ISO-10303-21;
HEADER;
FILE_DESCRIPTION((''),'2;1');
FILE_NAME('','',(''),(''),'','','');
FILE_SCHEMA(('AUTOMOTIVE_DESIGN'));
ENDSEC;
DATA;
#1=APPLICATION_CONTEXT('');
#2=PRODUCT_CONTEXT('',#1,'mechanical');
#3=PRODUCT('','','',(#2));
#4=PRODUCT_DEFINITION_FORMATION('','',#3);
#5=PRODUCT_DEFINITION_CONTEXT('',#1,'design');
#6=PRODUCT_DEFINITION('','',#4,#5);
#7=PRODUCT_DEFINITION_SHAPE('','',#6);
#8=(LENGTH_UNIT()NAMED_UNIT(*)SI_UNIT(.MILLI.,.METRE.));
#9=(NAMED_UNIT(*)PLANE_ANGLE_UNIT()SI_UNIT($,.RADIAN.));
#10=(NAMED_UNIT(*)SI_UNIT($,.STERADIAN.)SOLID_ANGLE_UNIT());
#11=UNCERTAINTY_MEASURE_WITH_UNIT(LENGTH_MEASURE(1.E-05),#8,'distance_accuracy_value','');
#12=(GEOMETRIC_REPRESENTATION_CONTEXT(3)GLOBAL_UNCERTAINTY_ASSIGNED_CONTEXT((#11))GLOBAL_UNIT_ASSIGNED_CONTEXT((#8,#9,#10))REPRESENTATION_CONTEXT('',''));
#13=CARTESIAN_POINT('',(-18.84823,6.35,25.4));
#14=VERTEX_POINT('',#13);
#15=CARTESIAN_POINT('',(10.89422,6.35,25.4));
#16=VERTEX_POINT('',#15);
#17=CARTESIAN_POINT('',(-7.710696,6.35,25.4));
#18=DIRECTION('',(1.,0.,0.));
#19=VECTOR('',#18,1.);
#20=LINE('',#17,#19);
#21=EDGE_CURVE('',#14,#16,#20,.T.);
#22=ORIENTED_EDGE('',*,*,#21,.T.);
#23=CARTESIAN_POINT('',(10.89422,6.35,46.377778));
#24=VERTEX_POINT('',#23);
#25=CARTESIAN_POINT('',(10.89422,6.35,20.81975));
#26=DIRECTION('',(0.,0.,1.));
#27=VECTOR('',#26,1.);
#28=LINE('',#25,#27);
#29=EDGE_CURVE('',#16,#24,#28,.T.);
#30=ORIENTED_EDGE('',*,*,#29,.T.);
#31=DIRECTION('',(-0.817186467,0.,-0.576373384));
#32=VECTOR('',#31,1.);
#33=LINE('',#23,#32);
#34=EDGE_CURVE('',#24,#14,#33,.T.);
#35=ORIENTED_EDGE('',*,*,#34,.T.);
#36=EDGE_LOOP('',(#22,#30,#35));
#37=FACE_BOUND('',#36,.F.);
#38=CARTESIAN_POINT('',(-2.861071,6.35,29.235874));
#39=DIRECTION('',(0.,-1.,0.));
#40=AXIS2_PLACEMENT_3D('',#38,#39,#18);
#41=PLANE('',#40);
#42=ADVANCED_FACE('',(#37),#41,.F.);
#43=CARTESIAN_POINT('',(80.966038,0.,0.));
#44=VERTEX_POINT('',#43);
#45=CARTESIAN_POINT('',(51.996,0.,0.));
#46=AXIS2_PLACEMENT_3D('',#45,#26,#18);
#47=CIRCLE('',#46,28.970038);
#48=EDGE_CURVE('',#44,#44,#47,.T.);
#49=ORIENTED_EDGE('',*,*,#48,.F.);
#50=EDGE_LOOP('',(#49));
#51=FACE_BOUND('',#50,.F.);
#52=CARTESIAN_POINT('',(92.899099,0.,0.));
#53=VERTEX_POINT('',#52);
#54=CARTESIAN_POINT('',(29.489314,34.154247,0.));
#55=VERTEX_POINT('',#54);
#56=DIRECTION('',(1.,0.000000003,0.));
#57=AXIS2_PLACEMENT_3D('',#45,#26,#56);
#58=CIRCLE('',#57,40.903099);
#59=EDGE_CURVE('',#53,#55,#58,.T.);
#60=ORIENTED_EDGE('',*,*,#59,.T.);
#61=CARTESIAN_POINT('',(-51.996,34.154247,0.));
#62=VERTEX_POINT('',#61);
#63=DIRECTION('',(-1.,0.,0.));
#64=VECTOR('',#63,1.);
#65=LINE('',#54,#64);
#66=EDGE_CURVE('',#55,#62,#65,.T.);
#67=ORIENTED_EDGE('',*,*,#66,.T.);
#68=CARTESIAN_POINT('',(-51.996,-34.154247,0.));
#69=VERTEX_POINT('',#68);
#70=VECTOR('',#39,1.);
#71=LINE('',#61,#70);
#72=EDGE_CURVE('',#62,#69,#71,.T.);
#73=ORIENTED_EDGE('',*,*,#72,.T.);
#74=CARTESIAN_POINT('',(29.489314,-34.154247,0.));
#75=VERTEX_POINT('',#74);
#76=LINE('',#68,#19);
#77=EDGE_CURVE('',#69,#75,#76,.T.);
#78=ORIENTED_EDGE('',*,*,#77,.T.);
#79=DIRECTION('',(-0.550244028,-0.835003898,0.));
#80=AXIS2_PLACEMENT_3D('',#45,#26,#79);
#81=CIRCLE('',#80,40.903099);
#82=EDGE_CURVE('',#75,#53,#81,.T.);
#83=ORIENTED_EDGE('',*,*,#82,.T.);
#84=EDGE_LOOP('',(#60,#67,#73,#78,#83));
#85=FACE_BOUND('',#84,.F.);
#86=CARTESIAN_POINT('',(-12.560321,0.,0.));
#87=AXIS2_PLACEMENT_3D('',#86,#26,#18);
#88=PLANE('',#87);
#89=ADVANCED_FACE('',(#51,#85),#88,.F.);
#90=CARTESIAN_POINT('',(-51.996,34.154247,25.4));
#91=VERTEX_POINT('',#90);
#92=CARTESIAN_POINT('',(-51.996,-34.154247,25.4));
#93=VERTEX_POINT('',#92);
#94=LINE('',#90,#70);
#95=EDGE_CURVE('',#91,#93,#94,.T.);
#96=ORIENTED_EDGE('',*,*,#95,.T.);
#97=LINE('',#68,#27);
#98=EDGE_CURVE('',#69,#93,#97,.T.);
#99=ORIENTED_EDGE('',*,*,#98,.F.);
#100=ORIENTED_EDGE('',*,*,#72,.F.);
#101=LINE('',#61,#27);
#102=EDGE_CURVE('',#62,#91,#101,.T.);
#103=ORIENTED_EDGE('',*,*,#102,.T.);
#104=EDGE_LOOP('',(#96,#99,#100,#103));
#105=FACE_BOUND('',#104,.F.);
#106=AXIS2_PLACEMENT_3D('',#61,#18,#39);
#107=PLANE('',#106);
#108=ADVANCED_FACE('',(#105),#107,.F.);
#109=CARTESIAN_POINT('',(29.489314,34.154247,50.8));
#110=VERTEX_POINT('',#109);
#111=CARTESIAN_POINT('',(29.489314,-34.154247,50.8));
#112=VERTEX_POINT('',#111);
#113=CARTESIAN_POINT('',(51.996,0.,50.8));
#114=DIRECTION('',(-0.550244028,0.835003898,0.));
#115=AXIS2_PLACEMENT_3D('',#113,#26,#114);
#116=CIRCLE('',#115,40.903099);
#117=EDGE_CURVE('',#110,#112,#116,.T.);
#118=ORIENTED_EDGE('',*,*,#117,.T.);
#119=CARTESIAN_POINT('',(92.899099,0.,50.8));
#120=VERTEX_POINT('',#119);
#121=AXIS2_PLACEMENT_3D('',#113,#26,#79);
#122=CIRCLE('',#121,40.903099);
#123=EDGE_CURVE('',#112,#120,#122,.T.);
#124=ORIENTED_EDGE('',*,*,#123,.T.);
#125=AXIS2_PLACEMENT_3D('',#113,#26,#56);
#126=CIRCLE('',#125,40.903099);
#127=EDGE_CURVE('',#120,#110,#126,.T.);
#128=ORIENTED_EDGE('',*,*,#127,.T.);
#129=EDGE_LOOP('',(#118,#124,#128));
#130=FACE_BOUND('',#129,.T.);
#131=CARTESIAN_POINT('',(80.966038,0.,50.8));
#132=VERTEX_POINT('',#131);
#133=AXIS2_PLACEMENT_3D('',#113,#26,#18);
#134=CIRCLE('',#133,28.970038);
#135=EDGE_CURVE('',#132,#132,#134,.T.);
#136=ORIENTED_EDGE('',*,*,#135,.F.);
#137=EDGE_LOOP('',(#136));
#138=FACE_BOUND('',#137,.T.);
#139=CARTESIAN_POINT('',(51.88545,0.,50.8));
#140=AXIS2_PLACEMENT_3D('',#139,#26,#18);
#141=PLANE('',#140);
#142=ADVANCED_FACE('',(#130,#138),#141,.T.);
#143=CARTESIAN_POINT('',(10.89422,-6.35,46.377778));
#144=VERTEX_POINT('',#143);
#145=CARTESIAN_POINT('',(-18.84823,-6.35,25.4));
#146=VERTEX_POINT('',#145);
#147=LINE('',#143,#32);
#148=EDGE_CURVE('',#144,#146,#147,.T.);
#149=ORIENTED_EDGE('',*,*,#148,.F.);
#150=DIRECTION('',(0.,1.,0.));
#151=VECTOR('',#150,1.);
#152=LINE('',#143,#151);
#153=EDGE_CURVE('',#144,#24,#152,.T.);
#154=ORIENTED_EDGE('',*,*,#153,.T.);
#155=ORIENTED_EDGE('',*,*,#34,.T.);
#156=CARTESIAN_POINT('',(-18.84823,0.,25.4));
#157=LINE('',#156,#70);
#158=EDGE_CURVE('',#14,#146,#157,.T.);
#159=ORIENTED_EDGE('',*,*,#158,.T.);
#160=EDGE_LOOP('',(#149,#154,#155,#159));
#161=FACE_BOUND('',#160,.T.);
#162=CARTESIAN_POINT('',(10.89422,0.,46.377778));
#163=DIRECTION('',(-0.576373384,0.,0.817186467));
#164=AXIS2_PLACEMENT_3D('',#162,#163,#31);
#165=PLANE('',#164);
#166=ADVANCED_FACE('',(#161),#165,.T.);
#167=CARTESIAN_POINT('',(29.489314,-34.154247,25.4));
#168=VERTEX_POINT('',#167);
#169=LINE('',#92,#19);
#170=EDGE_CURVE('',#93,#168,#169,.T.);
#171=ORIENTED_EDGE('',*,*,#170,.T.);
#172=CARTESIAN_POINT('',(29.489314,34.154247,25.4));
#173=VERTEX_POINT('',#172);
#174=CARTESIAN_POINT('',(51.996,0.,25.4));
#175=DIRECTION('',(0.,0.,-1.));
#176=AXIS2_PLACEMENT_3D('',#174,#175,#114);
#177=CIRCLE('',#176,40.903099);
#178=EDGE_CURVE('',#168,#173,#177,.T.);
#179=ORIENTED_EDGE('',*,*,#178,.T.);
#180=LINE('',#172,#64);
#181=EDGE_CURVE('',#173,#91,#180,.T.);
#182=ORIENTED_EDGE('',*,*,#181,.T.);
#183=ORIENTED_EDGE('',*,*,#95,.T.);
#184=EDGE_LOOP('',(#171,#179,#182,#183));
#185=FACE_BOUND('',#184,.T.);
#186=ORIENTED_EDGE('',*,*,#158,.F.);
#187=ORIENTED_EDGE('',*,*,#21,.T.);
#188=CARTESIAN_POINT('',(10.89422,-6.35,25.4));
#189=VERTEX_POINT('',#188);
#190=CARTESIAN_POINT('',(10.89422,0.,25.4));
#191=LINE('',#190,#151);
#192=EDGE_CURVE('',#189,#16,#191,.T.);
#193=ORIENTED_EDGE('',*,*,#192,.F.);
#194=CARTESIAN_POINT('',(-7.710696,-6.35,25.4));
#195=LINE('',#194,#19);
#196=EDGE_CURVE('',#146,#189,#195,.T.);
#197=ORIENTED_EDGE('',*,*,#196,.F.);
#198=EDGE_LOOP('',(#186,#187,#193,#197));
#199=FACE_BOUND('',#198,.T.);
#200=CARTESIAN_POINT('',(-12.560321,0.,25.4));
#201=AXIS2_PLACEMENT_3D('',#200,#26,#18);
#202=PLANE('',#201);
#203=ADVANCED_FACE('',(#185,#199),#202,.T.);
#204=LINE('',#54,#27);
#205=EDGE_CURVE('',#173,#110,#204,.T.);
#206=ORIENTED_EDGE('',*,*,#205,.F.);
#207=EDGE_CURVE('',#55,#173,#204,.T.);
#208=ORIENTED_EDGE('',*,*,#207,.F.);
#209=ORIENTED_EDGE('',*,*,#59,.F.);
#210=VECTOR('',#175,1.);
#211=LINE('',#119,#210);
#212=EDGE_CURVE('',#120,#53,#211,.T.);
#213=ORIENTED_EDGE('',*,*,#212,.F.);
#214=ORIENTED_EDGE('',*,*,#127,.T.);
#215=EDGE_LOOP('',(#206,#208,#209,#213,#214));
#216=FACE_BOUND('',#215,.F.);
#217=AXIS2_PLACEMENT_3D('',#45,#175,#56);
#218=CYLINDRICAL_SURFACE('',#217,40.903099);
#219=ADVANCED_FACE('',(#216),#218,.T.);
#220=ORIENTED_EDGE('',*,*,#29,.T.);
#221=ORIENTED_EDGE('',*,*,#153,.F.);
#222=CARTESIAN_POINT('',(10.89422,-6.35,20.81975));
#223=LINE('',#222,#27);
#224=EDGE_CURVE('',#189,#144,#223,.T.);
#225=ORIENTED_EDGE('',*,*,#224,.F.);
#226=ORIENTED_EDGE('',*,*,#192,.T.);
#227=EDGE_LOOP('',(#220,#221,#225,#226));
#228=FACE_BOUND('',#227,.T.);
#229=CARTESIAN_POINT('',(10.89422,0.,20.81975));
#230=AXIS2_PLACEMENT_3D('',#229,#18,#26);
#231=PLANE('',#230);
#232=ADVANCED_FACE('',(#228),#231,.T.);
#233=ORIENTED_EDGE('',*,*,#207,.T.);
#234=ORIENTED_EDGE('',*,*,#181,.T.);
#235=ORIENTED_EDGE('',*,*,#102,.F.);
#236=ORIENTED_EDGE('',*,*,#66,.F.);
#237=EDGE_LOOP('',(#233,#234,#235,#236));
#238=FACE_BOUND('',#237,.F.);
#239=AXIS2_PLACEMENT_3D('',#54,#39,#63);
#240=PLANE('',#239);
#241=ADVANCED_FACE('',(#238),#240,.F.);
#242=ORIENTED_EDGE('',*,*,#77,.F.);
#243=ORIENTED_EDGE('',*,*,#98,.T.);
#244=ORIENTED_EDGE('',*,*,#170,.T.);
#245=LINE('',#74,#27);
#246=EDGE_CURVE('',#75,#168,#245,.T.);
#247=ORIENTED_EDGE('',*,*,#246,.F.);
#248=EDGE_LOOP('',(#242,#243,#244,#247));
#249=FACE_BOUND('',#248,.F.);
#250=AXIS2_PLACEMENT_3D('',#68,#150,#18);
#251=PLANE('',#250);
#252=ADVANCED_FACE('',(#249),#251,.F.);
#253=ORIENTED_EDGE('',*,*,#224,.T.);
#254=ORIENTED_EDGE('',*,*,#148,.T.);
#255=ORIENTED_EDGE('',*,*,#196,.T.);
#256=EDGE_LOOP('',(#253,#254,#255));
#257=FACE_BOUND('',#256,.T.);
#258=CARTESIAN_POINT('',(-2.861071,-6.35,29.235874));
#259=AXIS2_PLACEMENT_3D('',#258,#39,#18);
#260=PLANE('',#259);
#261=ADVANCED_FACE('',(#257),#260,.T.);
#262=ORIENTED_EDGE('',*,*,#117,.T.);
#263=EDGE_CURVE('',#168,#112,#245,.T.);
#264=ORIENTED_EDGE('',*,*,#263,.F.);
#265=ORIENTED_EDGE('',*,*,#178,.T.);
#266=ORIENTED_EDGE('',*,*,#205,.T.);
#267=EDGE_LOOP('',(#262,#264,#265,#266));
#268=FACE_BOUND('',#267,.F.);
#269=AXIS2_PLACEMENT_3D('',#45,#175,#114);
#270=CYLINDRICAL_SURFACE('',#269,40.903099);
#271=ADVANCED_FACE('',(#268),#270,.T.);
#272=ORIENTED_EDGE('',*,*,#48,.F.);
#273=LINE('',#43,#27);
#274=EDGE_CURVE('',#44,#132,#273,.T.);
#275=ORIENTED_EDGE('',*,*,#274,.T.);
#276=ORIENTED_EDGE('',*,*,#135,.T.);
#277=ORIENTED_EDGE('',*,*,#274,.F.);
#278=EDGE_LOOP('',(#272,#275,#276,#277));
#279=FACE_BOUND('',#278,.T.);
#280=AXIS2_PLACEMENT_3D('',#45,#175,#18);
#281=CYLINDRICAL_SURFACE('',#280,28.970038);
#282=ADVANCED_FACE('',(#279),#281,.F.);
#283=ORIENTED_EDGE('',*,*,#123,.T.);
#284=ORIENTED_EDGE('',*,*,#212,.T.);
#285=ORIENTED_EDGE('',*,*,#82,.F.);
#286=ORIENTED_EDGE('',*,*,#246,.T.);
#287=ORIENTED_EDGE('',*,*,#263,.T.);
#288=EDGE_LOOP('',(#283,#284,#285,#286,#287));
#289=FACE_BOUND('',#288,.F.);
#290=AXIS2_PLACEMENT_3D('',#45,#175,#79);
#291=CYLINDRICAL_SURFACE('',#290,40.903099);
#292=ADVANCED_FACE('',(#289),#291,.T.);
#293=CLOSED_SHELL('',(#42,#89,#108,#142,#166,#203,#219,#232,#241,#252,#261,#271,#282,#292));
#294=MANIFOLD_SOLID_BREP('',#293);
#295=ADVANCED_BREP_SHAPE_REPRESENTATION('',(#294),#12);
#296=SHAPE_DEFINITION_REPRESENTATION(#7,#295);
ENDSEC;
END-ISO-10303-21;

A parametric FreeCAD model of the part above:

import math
import FreeCAD as App
import Part
import Sketcher
Q = App.Units.Quantity

doc = App.newDocument("Part")
body = doc.addObject("PartDesign::Body", "Body")

# Sketch on XY plane
sketch1 = body.newObject("Sketcher::SketchObject", "Sketch")
sketch1.AttachmentSupport = (doc.getObject("XY_Plane"), [""])
sketch1.MapMode = "FlatFace"
sketch1.addGeometry([
    Part.ArcOfCircle(Part.Circle(App.Vector(52, 0, 0), App.Vector(0, 0, 1), 41), math.radians(0), math.radians(123)),
    Part.ArcOfCircle(Part.Circle(App.Vector(52, 0, 0), App.Vector(0, 0, 1), 41), math.radians(123), math.radians(237)),
    Part.ArcOfCircle(Part.Circle(App.Vector(52, 0, 0), App.Vector(0, 0, 1), 41), math.radians(-123), math.radians(0)),
    Part.Circle(App.Vector(52, 0, 0), App.Vector(0, 0, 1), 29),
], False)
sketch1.addConstraint([
    Sketcher.Constraint("Tangent", 0, 2, 1, 1),
    Sketcher.Constraint("Tangent", 1, 2, 2, 1),
    Sketcher.Constraint("Tangent", 2, 2, 0, 1),
    Sketcher.Constraint("Coincident", 3, 3, 0, 3),
    Sketcher.Constraint("Symmetric", 0, 2, 1, 2, -1),
    Sketcher.Constraint("PointOnObject", 2, 2, -1),
    Sketcher.Constraint("Radius", 0, 40.903099),
    Sketcher.Constraint("Diameter", 3, 57.940076),
    Sketcher.Constraint("DistanceX", -1, 1, 0, 3, 51.996),
    Sketcher.Constraint("DistanceX", -1, 1, 0, 2, 29.489314),
])
pad1 = body.newObject("PartDesign::Pad", "Pad")
pad1.Profile = sketch1
pad1.Length = Q("2 in")

# Sketch on XY plane
sketch2 = body.newObject("Sketcher::SketchObject", "Sketch001")
sketch2.AttachmentSupport = (doc.getObject("XY_Plane"), [""])
sketch2.MapMode = "FlatFace"
sketch2.addGeometry([
    Part.LineSegment(App.Vector(29, 34, 0), App.Vector(-52, 34, 0)),  # 0
    Part.LineSegment(App.Vector(-52, 34, 0), App.Vector(-52, -34, 0)),  # 1
    Part.LineSegment(App.Vector(-52, -34, 0), App.Vector(29, -34, 0)),  # 2
    Part.ArcOfCircle(Part.Circle(App.Vector(52, 0, 0), App.Vector(0, 0, 1), 41), math.radians(-123), math.radians(0)),  # 3
    Part.ArcOfCircle(Part.Circle(App.Vector(52, 0, 0), App.Vector(0, 0, 1), 41), math.radians(0), math.radians(123)),  # 4
    Part.Circle(App.Vector(52, 0, 0), App.Vector(0, 0, 1), 29),  # 5
], False)
sketch2.addConstraint([
    Sketcher.Constraint("Coincident", 0, 2, 1, 1),
    Sketcher.Constraint("Coincident", 1, 2, 2, 1),
    Sketcher.Constraint("Coincident", 2, 2, 3, 1),
    Sketcher.Constraint("Tangent", 3, 2, 4, 1),
    Sketcher.Constraint("Coincident", 4, 2, 0, 1),
    Sketcher.Constraint("Horizontal", 0),
    Sketcher.Constraint("Vertical", 1),
    Sketcher.Constraint("Horizontal", 2),
    Sketcher.Constraint("Coincident", 5, 3, 3, 3),
    Sketcher.Constraint("Equal", 3, 4),
    Sketcher.Constraint("Symmetric", 2, 2, 4, 2, -1),
    Sketcher.Constraint("PointOnObject", 3, 2, -1),
    Sketcher.Constraint("Radius", 3, 40.903099),
    Sketcher.Constraint("Diameter", 5, 57.940076),
    Sketcher.Constraint("DistanceX", -1, 1, 3, 3, 51.996),
    Sketcher.Constraint("DistanceX", 0, 2, -1, 1, 51.996),
    Sketcher.Constraint("DistanceX", 0, 2, 0, 1, 81.485314),
])
pad2 = body.newObject("PartDesign::Pad", "Pad001")
pad2.Profile = sketch2
pad2.Length = Q("1 in")

# Sketch on XZ plane
sketch3 = body.newObject("Sketcher::SketchObject", "Sketch002")
sketch3.AttachmentSupport = (doc.getObject("XZ_Plane"), [""])
sketch3.MapMode = "FlatFace"
sketch3.addGeometry([
    Part.LineSegment(App.Vector(-25, 21, 0), App.Vector(11, 21, 0)),
    Part.LineSegment(App.Vector(11, 21, 0), App.Vector(11, 46, 0)),
    Part.LineSegment(App.Vector(11, 46, 0), App.Vector(-25, 21, 0)),
], False)
sketch3.addConstraint([
    Sketcher.Constraint("Coincident", 0, 2, 1, 1),
    Sketcher.Constraint("Coincident", 1, 2, 2, 1),
    Sketcher.Constraint("Coincident", 2, 2, 0, 1),
    Sketcher.Constraint("Horizontal", 0),
    Sketcher.Constraint("Vertical", 1),
    Sketcher.Constraint("DistanceY", 1, 1, 1, 2, 25.558028),
    Sketcher.Constraint("Distance", 2, 44.342832),
    Sketcher.Constraint("DistanceX", -1, 1, 0, 2, 10.89422),
    Sketcher.Constraint("DistanceY", -1, 1, 0, 2, 20.81975),
])
pad3 = body.newObject("PartDesign::Pad", "Pad002")
pad3.Profile = sketch3
pad3.Length = Q("0.5 in")
pad3.Midplane = True

doc.recompute()
